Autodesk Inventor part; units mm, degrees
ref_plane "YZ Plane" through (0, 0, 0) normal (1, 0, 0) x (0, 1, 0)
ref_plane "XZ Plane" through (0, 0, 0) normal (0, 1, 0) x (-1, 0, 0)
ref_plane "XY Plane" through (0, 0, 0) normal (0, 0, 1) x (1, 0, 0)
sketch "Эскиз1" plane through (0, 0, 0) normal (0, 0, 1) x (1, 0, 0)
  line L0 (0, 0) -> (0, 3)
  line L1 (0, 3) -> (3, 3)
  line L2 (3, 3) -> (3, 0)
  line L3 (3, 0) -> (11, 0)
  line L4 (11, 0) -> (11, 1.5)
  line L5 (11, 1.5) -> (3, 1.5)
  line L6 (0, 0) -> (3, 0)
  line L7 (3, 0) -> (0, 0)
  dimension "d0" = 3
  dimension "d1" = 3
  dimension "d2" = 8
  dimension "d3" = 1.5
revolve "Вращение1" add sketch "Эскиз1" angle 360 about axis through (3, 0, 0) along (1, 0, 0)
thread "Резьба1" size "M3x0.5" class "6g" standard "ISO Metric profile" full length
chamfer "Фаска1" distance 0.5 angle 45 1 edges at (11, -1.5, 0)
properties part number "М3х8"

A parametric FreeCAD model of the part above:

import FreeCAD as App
import Part
import Sketcher
from FreeCAD import Vector
Q = App.Units.Quantity


def edges_at(feature, points):
    """Names of the edges that pass closest to the given points."""
    edges = feature.Shape.Edges
    near = lambda p: min(range(len(edges)), key=lambda i: edges[i].distToShape(Part.Vertex(*p))[0])
    return sorted({f"Edge{near(p) + 1}" for p in points})


def add_polygon(sketch, points):
    """Adds a closed chain of lines whose ends are joined by coincident constraints."""
    first, n = sketch.GeometryCount, len(points)
    for a, b in zip(points, points[1:] + points[:1]):
        sketch.addGeometry(Part.LineSegment(App.Vector(*a, 0), App.Vector(*b, 0)), False)
    for i in range(n):
        sketch.addConstraint(Sketcher.Constraint("Coincident", first + i, 2, first + (i + 1) % n, 1))

doc = App.newDocument("Part")
params = doc.addObject("Spreadsheet::Sheet", "Params")
for row, (alias, value) in enumerate([
    ("sketch1_width", "8 mm"),
    ("sketch1_width2", "3 mm"),
    ("revolution_angle", "360 deg"),
    ("chamfer_size", "0.5 mm"),
], start=1):
    params.set(f"A{row}", alias)
    params.set(f"B{row}", "=" + value)
    params.setAlias(f"B{row}", alias)

body = doc.addObject("PartDesign::Body", "Body")

sketch1 = body.newObject("Sketcher::SketchObject", "Sketch")
sketch1.AttachmentSupport = (doc.getObject("XY_Plane"), [""])
sketch1.MapMode = "FlatFace"
add_polygon(sketch1, [(0, 3), (0, 0), (11, 0), (11, 1.5), (3, 1.5), (3, 3)])
sketch1.addConstraint([
    Sketcher.Constraint("Vertical", 0),
    Sketcher.Constraint("Horizontal", 1),
    Sketcher.Constraint("Vertical", 2),
    Sketcher.Constraint("Horizontal", 3),
    Sketcher.Constraint("Vertical", 4),
    Sketcher.Constraint("Horizontal", 5),
    Sketcher.Constraint("Coincident", 0, 2, -1, 1),
    Sketcher.Constraint("Equal", 5, 0),
    Sketcher.Constraint("Equal", 2, 4),
    Sketcher.Constraint("DistanceX", 3, 2, 3, 1, Q("8 mm")),
    Sketcher.Constraint("DistanceX", 5, 2, 5, 1, Q("3 mm")),
])
sketch1.setExpression("Constraints[15]", "Params.sketch1_width")
sketch1.setExpression("Constraints[16]", "Params.sketch1_width2")
revolution = body.newObject("PartDesign::Revolution", "Revolution")
revolution.Profile = sketch1
revolution.ReferenceAxis = (sketch1, ["H_Axis"])
revolution.setExpression("Angle", "Params.revolution_angle")
doc.recompute()

chamfer = body.newObject("PartDesign::Chamfer", "Chamfer")
chamfer.Base = (revolution, edges_at(revolution, [(11, -1.5, 0)]))
chamfer.setExpression("Size", "Params.chamfer_size")

doc.recompute()
